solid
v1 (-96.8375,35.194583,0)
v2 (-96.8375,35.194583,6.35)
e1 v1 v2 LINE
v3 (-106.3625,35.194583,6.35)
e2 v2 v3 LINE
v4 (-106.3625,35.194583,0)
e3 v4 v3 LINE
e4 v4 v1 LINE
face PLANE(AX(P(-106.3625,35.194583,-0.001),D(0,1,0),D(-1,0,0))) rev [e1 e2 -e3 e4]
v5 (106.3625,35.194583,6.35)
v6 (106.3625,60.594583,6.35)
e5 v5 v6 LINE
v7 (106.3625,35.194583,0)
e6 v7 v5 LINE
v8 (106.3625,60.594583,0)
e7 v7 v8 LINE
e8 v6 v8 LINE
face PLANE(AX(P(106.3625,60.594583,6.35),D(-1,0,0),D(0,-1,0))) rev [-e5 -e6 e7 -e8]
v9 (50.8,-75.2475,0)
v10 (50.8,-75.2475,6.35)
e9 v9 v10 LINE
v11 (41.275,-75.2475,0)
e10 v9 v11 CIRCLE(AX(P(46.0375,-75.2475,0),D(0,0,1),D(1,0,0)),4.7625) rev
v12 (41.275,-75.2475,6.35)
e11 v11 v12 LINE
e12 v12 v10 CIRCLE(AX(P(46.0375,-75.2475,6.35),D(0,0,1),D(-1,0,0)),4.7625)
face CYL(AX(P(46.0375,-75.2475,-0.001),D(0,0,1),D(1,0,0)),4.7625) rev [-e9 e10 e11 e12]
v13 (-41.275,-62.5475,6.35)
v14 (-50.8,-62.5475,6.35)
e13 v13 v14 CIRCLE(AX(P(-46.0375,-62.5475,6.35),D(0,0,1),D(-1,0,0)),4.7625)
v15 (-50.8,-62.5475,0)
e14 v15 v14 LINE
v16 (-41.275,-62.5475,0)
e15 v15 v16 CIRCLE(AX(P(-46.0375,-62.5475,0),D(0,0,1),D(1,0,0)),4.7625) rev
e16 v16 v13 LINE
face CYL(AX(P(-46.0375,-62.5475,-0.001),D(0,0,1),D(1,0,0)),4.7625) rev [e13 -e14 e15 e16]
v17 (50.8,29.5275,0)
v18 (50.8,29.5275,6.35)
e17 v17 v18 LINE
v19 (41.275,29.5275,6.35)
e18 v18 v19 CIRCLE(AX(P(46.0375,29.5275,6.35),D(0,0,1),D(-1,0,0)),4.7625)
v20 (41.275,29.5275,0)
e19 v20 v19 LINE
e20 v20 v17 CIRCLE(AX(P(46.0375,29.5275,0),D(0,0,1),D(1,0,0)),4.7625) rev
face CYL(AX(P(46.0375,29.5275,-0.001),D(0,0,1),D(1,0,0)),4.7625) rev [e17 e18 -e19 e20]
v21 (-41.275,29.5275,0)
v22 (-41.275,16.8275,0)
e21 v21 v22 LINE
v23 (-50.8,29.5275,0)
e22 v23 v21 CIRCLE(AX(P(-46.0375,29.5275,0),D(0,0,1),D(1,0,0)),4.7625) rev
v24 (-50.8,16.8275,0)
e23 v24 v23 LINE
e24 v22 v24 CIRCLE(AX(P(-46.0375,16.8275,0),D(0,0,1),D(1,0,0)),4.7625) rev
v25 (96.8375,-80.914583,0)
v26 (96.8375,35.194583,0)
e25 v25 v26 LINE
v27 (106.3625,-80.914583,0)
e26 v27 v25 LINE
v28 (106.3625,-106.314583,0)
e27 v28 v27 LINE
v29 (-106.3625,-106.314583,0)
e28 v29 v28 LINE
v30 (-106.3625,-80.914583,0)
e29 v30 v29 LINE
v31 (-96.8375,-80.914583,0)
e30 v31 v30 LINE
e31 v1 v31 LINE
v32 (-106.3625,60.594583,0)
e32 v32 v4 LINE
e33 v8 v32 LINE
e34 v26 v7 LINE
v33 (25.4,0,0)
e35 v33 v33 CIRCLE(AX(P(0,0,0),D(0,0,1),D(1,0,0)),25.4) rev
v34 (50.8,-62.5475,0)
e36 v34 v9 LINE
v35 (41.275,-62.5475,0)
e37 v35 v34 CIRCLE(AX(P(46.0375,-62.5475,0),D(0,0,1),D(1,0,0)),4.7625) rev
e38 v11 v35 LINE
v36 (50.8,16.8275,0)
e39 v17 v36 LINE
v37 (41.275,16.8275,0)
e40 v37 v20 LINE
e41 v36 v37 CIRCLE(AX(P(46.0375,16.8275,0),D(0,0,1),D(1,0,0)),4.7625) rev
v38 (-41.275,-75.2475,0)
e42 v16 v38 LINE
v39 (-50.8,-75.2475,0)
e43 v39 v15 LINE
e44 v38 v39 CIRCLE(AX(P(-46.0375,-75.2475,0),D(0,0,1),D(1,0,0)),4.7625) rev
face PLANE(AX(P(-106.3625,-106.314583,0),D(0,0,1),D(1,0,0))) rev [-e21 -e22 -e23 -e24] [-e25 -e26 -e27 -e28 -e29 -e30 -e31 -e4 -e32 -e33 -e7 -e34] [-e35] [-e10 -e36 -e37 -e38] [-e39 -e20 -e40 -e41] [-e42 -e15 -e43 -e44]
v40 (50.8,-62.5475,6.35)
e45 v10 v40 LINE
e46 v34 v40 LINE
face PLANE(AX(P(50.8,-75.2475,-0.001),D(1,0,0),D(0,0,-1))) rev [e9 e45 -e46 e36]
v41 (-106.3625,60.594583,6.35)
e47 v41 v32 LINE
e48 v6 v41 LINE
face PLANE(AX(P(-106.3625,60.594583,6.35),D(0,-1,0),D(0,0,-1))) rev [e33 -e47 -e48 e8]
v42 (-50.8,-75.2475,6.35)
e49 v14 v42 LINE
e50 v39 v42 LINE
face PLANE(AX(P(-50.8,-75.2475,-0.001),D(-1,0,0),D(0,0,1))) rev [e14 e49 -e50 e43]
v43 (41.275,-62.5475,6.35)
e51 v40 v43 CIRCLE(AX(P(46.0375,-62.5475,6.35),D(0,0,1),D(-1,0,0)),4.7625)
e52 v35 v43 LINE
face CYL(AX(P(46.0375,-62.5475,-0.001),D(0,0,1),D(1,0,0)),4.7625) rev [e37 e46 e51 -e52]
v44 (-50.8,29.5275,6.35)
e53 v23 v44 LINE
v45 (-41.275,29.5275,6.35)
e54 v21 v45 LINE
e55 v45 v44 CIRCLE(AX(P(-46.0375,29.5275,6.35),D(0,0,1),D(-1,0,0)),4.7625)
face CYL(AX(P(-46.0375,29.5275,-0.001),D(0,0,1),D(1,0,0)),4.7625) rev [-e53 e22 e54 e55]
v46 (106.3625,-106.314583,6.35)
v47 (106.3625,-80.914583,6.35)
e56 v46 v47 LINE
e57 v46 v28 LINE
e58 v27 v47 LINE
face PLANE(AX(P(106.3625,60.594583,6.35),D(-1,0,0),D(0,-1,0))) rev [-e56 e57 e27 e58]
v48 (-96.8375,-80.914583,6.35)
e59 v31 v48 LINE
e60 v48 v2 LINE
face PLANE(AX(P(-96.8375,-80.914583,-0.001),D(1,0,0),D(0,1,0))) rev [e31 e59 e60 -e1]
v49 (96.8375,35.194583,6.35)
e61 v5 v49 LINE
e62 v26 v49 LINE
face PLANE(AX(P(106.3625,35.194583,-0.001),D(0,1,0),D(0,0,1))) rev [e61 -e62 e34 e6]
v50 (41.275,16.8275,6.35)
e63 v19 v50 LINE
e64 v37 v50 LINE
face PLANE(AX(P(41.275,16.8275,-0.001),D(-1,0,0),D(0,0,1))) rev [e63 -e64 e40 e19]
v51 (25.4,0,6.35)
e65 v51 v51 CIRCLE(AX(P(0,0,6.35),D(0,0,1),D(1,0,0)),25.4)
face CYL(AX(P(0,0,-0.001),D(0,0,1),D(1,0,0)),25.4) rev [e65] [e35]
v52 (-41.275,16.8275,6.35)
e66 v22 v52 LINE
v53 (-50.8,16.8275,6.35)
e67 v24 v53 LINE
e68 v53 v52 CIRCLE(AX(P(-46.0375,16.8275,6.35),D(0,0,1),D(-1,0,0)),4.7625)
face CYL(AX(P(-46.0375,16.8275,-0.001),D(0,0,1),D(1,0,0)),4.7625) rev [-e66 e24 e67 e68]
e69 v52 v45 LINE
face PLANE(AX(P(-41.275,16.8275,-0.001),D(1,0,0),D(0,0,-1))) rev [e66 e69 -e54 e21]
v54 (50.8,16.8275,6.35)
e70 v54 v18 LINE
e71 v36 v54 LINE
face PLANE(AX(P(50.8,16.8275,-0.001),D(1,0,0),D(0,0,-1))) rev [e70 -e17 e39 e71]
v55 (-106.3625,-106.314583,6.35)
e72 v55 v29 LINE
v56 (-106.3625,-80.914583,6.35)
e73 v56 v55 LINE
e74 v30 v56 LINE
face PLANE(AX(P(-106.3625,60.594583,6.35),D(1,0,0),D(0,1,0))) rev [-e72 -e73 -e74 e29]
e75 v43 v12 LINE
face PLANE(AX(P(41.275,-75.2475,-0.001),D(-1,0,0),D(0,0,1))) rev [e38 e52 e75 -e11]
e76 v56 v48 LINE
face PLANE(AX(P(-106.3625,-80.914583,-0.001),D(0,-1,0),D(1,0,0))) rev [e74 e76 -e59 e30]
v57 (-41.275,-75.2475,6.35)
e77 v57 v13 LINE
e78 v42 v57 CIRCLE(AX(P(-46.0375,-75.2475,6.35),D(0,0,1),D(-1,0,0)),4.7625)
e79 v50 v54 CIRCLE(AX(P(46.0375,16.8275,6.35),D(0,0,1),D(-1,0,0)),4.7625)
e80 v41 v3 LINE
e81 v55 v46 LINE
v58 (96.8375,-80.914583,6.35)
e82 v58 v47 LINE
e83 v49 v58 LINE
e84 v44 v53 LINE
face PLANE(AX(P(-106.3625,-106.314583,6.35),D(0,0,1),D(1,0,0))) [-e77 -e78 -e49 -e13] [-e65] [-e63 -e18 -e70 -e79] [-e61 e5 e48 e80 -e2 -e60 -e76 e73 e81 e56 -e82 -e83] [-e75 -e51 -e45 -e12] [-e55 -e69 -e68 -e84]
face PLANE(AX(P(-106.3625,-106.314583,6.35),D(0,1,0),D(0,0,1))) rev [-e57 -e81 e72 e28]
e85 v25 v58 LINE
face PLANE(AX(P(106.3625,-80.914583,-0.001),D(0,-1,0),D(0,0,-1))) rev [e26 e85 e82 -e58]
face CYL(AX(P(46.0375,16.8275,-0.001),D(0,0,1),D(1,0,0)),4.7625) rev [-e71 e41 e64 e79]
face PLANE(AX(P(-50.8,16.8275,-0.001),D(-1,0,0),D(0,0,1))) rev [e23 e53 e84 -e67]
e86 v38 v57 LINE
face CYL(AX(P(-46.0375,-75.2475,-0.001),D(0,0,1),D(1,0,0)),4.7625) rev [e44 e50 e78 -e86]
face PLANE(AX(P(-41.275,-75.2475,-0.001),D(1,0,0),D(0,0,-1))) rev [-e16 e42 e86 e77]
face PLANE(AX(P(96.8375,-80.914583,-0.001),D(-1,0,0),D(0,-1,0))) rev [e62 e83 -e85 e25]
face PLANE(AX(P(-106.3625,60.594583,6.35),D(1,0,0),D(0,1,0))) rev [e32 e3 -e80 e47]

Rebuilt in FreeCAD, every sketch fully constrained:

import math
import FreeCAD as App
import Part
import Sketcher
Q = App.Units.Quantity

doc = App.newDocument("Part")
body = doc.addObject("PartDesign::Body", "Body")

# Sketch on XY plane
sketch1 = doc.addObject("Sketcher::SketchObject", "Sketch")
body.addObject(sketch1)
sketch1.AttachmentSupport = (doc.XY_Plane, [""])
sketch1.MapMode = "FlatFace"
sketch1.addGeometry([
    Part.LineSegment(App.Vector(-106.3625, 60.594583, 0), App.Vector(-106.3625, -106.314583, 0)),
    Part.LineSegment(App.Vector(-106.3625, -106.314583, 0), App.Vector(106.3625, -106.314583, 0)),
    Part.LineSegment(App.Vector(106.3625, -106.314583, 0), App.Vector(106.3625, 60.594583, 0)),
    Part.LineSegment(App.Vector(106.3625, 60.594583, 0), App.Vector(-106.3625, 60.594583, 0)),
], False)
sketch1.addConstraint([
    Sketcher.Constraint("Coincident", 0, 2, 1, 1),
    Sketcher.Constraint("Coincident", 1, 2, 2, 1),
    Sketcher.Constraint("Coincident", 2, 2, 3, 1),
    Sketcher.Constraint("Coincident", 3, 2, 0, 1),
    Sketcher.Constraint("Vertical", 0),
    Sketcher.Constraint("Horizontal", 1),
    Sketcher.Constraint("Vertical", 2),
    Sketcher.Constraint("Horizontal", 3),
    Sketcher.Constraint("DistanceX", 1, 1, 1, 2, Q("8.375 in")),
    Sketcher.Constraint("DistanceX", 0, 2, -1, 1, Q("4.1875 in")),
    Sketcher.Constraint("DistanceY", 0, 2, 0, 1, 166.909167),
    Sketcher.Constraint("DistanceY", 0, 2, -1, 1, 106.314583),
])
pad1 = doc.addObject("PartDesign::Pad", "Pad")
body.addObject(pad1)
pad1.Profile = sketch1
pad1.Length = Q("0.25 in")

# Sketch on XY plane
sketch2 = doc.addObject("Sketcher::SketchObject", "Sketch001")
body.addObject(sketch2)
sketch2.AttachmentSupport = (doc.XY_Plane, [""])
sketch2.MapMode = "FlatFace"
sketch2.AttachmentOffset = App.Placement(App.Vector(0, 0, 0.25 * 25.4), App.Rotation())
sketch2.addGeometry(Part.Circle(App.Vector(0, 0, 0), App.Vector(0, 0, 1), 25.4), False)
sketch2.addConstraint([
    Sketcher.Constraint("Coincident", 0, 3, -1, 1),
    Sketcher.Constraint("Diameter", 0, Q("2 in")),
])
pocket1 = doc.addObject("PartDesign::Pocket", "Pocket")
body.addObject(pocket1)
pocket1.Profile = sketch2
pocket1.Type = "UpToFirst"

# Sketch on XY plane
sketch3 = doc.addObject("Sketcher::SketchObject", "Sketch002")
body.addObject(sketch3)
sketch3.AttachmentSupport = (doc.XY_Plane, [""])
sketch3.MapMode = "FlatFace"
sketch3.AttachmentOffset = App.Placement(App.Vector(0, 0, 0.25 * 25.4), App.Rotation())
sketch3.addGeometry([
    Part.LineSegment(App.Vector(50.8, -75.2475, 0), App.Vector(50.8, -62.5475, 0)),
    Part.ArcOfCircle(Part.Circle(App.Vector(46.0375, -62.5475, 0), App.Vector(0, 0, 1), 4.7625), math.radians(0), math.radians(180)),
    Part.LineSegment(App.Vector(41.275, -62.5475, 0), App.Vector(41.275, -75.2475, 0)),
    Part.ArcOfCircle(Part.Circle(App.Vector(46.0375, -75.2475, 0), App.Vector(0, 0, 1), 4.7625), math.radians(180), math.radians(360)),
], False)
sketch3.addConstraint([
    Sketcher.Constraint("Tangent", 0, 2, 1, 1),
    Sketcher.Constraint("Tangent", 1, 2, 2, 1),
    Sketcher.Constraint("Tangent", 2, 2, 3, 1),
    Sketcher.Constraint("Tangent", 3, 2, 0, 1),
    Sketcher.Constraint("Vertical", 0),
    Sketcher.Constraint("Vertical", 2),
    Sketcher.Constraint("DistanceY", 0, 1, 0, 2, Q("0.5 in")),
    Sketcher.Constraint("DistanceX", -1, 1, 0, 2, Q("2 in")),
    Sketcher.Constraint("Radius", 1, Q("0.1875 in")),
    Sketcher.Constraint("DistanceY", 1, 3, -1, 1, Q("2.4625 in")),
])
pocket2 = doc.addObject("PartDesign::Pocket", "Pocket001")
body.addObject(pocket2)
pocket2.Profile = sketch3
pocket2.Type = "UpToFirst"

# Sketch on XY plane
sketch4 = doc.addObject("Sketcher::SketchObject", "Sketch003")
body.addObject(sketch4)
sketch4.AttachmentSupport = (doc.XY_Plane, [""])
sketch4.MapMode = "FlatFace"
sketch4.AttachmentOffset = App.Placement(App.Vector(0, 0, 0.25 * 25.4), App.Rotation())
sketch4.addGeometry([
    Part.LineSegment(App.Vector(50.8, 16.8275, 0), App.Vector(50.8, 29.5275, 0)),
    Part.ArcOfCircle(Part.Circle(App.Vector(46.0375, 29.5275, 0), App.Vector(0, 0, 1), 4.7625), math.radians(0), math.radians(180)),
    Part.LineSegment(App.Vector(41.275, 29.5275, 0), App.Vector(41.275, 16.8275, 0)),
    Part.ArcOfCircle(Part.Circle(App.Vector(46.0375, 16.8275, 0), App.Vector(0, 0, 1), 4.7625), math.radians(180), math.radians(360)),
], False)
sketch4.addConstraint([
    Sketcher.Constraint("Tangent", 0, 2, 1, 1),
    Sketcher.Constraint("Tangent", 1, 2, 2, 1),
    Sketcher.Constraint("Tangent", 2, 2, 3, 1),
    Sketcher.Constraint("Tangent", 3, 2, 0, 1),
    Sketcher.Constraint("Vertical", 0),
    Sketcher.Constraint("Vertical", 2),
    Sketcher.Constraint("DistanceY", 0, 1, 0, 2, Q("0.5 in")),
    Sketcher.Constraint("DistanceX", -1, 1, 0, 2, Q("2 in")),
    Sketcher.Constraint("Radius", 1, Q("0.1875 in")),
    Sketcher.Constraint("DistanceY", -1, 1, 1, 3, Q("1.1625 in")),
])
pocket3 = doc.addObject("PartDesign::Pocket", "Pocket002")
body.addObject(pocket3)
pocket3.Profile = sketch4
pocket3.Type = "UpToFirst"

# Sketch on XY plane
sketch5 = doc.addObject("Sketcher::SketchObject", "Sketch004")
body.addObject(sketch5)
sketch5.AttachmentSupport = (doc.XY_Plane, [""])
sketch5.MapMode = "FlatFace"
sketch5.AttachmentOffset = App.Placement(App.Vector(0, 0, 0.25 * 25.4), App.Rotation())
sketch5.addGeometry([
    Part.LineSegment(App.Vector(-41.275, 16.8275, 0), App.Vector(-41.275, 29.5275, 0)),
    Part.ArcOfCircle(Part.Circle(App.Vector(-46.0375, 29.5275, 0), App.Vector(0, 0, 1), 4.7625), math.radians(0), math.radians(180)),
    Part.LineSegment(App.Vector(-50.8, 29.5275, 0), App.Vector(-50.8, 16.8275, 0)),
    Part.ArcOfCircle(Part.Circle(App.Vector(-46.0375, 16.8275, 0), App.Vector(0, 0, 1), 4.7625), math.radians(180), math.radians(360)),
], False)
sketch5.addConstraint([
    Sketcher.Constraint("Tangent", 0, 2, 1, 1),
    Sketcher.Constraint("Tangent", 1, 2, 2, 1),
    Sketcher.Constraint("Tangent", 2, 2, 3, 1),
    Sketcher.Constraint("Tangent", 3, 2, 0, 1),
    Sketcher.Constraint("Vertical", 0),
    Sketcher.Constraint("Vertical", 2),
    Sketcher.Constraint("DistanceY", 0, 1, 0, 2, Q("0.5 in")),
    Sketcher.Constraint("DistanceX", 1, 2, -1, 1, Q("2 in")),
    Sketcher.Constraint("Radius", 1, Q("0.1875 in")),
    Sketcher.Constraint("DistanceY", -1, 1, 1, 3, Q("1.1625 in")),
])
pocket4 = doc.addObject("PartDesign::Pocket", "Pocket003")
body.addObject(pocket4)
pocket4.Profile = sketch5
pocket4.Type = "UpToFirst"

# Sketch on XY plane
sketch6 = doc.addObject("Sketcher::SketchObject", "Sketch005")
body.addObject(sketch6)
sketch6.AttachmentSupport = (doc.XY_Plane, [""])
sketch6.MapMode = "FlatFace"
sketch6.AttachmentOffset = App.Placement(App.Vector(0, 0, 0.25 * 25.4), App.Rotation())
sketch6.addGeometry([
    Part.LineSegment(App.Vector(-41.275, -75.2475, 0), App.Vector(-41.275, -62.5475, 0)),
    Part.ArcOfCircle(Part.Circle(App.Vector(-46.0375, -62.5475, 0), App.Vector(0, 0, 1), 4.7625), math.radians(0), math.radians(180)),
    Part.LineSegment(App.Vector(-50.8, -62.5475, 0), App.Vector(-50.8, -75.2475, 0)),
    Part.ArcOfCircle(Part.Circle(App.Vector(-46.0375, -75.2475, 0), App.Vector(0, 0, 1), 4.7625), math.radians(180), math.radians(360)),
], False)
sketch6.addConstraint([
    Sketcher.Constraint("Tangent", 0, 2, 1, 1),
    Sketcher.Constraint("Tangent", 1, 2, 2, 1),
    Sketcher.Constraint("Tangent", 2, 2, 3, 1),
    Sketcher.Constraint("Tangent", 3, 2, 0, 1),
    Sketcher.Constraint("Vertical", 0),
    Sketcher.Constraint("Vertical", 2),
    Sketcher.Constraint("DistanceY", 0, 1, 0, 2, Q("0.5 in")),
    Sketcher.Constraint("DistanceX", 1, 2, -1, 1, Q("2 in")),
    Sketcher.Constraint("Radius", 1, Q("0.1875 in")),
    Sketcher.Constraint("DistanceY", 1, 3, -1, 1, Q("2.4625 in")),
])
pocket5 = doc.addObject("PartDesign::Pocket", "Pocket004")
body.addObject(pocket5)
pocket5.Profile = sketch6
pocket5.Type = "UpToFirst"

# Sketch on XY plane
sketch7 = doc.addObject("Sketcher::SketchObject", "Sketch006")
body.addObject(sketch7)
sketch7.AttachmentSupport = (doc.XY_Plane, [""])
sketch7.MapMode = "FlatFace"
sketch7.AttachmentOffset = App.Placement(App.Vector(0, 0, 0.25 * 25.4), App.Rotation())
sketch7.addGeometry([
    Part.LineSegment(App.Vector(-106.3625, 35.194583, 0), App.Vector(-106.3625, -80.914583, 0)),
    Part.LineSegment(App.Vector(-106.3625, -80.914583, 0), App.Vector(-96.8375, -80.914583, 0)),
    Part.LineSegment(App.Vector(-96.8375, -80.914583, 0), App.Vector(-96.8375, 35.194583, 0)),
    Part.LineSegment(App.Vector(-96.8375, 35.194583, 0), App.Vector(-106.3625, 35.194583, 0)),
], False)
sketch7.addConstraint([
    Sketcher.Constraint("Coincident", 0, 2, 1, 1),
    Sketcher.Constraint("Coincident", 1, 2, 2, 1),
    Sketcher.Constraint("Coincident", 2, 2, 3, 1),
    Sketcher.Constraint("Coincident", 3, 2, 0, 1),
    Sketcher.Constraint("Vertical", 0),
    Sketcher.Constraint("Horizontal", 1),
    Sketcher.Constraint("Vertical", 2),
    Sketcher.Constraint("Horizontal", 3),
    Sketcher.Constraint("DistanceX", 1, 1, 1, 2, Q("0.375 in")),
    Sketcher.Constraint("DistanceX", 0, 2, -1, 1, Q("4.1875 in")),
    Sketcher.Constraint("DistanceY", 0, 2, 0, 1, 116.109167),
    Sketcher.Constraint("DistanceY", 0, 2, -1, 1, 80.914583),
])
pocket6 = doc.addObject("PartDesign::Pocket", "Pocket005")
body.addObject(pocket6)
pocket6.Profile = sketch7
pocket6.Type = "UpToFirst"

# Sketch on XY plane
sketch8 = doc.addObject("Sketcher::SketchObject", "Sketch007")
body.addObject(sketch8)
sketch8.AttachmentSupport = (doc.XY_Plane, [""])
sketch8.MapMode = "FlatFace"
sketch8.AttachmentOffset = App.Placement(App.Vector(0, 0, 0.25 * 25.4), App.Rotation())
sketch8.addGeometry([
    Part.LineSegment(App.Vector(96.8375, 35.194583, 0), App.Vector(96.8375, -80.914583, 0)),
    Part.LineSegment(App.Vector(96.8375, -80.914583, 0), App.Vector(106.3625, -80.914583, 0)),
    Part.LineSegment(App.Vector(106.3625, -80.914583, 0), App.Vector(106.3625, 35.194583, 0)),
    Part.LineSegment(App.Vector(106.3625, 35.194583, 0), App.Vector(96.8375, 35.194583, 0)),
], False)
sketch8.addConstraint([
    Sketcher.Constraint("Coincident", 0, 2, 1, 1),
    Sketcher.Constraint("Coincident", 1, 2, 2, 1),
    Sketcher.Constraint("Coincident", 2, 2, 3, 1),
    Sketcher.Constraint("Coincident", 3, 2, 0, 1),
    Sketcher.Constraint("Vertical", 0),
    Sketcher.Constraint("Horizontal", 1),
    Sketcher.Constraint("Vertical", 2),
    Sketcher.Constraint("Horizontal", 3),
    Sketcher.Constraint("DistanceX", 1, 1, 1, 2, Q("0.375 in")),
    Sketcher.Constraint("DistanceX", -1, 1, 0, 2, Q("3.8125 in")),
    Sketcher.Constraint("DistanceY", 0, 2, 0, 1, 116.109167),
    Sketcher.Constraint("DistanceY", 0, 2, -1, 1, 80.914583),
])
pocket7 = doc.addObject("PartDesign::Pocket", "Pocket006")
body.addObject(pocket7)
pocket7.Profile = sketch8
pocket7.Type = "UpToFirst"

doc.recompute()
